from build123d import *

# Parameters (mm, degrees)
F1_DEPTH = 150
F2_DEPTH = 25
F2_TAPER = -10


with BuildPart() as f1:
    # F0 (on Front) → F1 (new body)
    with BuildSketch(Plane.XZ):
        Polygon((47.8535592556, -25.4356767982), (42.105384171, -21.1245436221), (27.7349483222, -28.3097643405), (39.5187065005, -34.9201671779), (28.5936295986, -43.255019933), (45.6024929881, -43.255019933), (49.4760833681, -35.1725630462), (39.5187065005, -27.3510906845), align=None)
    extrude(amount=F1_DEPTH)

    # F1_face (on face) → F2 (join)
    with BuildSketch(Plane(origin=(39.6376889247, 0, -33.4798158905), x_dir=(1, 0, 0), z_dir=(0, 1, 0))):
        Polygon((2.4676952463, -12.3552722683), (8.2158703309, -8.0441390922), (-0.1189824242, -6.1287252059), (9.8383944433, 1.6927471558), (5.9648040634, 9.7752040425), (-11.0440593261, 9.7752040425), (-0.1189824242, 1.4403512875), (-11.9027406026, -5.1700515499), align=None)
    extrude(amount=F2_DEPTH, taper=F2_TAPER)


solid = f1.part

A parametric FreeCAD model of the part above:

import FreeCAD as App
import Part
import Sketcher

V = App.Vector
Q = App.Units.Quantity


def add_polygon(sketch, points):
    """Adds a closed chain of lines whose ends are joined by coincident constraints."""
    first, n = sketch.GeometryCount, len(points)
    for a, b in zip(points, points[1:] + points[:1]):
        sketch.addGeometry(Part.LineSegment(App.Vector(*a, 0), App.Vector(*b, 0)), False)
    for i in range(n):
        sketch.addConstraint(Sketcher.Constraint("Coincident", first + i, 2, first + (i + 1) % n, 1))

doc = App.newDocument("Part")
body = doc.addObject("PartDesign::Body", "Body")

sketch1 = body.newObject("Sketcher::SketchObject", "Sketch")
sketch1.AttachmentSupport = (doc.getObject("XZ_Plane"), [""])
sketch1.MapMode = "FlatFace"
add_polygon(sketch1, [(48, -25), (42, -21), (28, -28), (40, -35), (29, -43), (46, -43), (49, -35), (40, -27)])
sketch1.addConstraint([
    Sketcher.Constraint("Horizontal", 4),
    Sketcher.Constraint("Vertical", 2, 2, 6, 2),
    Sketcher.Constraint("DistanceX", 0, 2, 5, 2, Q("7.370699 mm")),
    Sketcher.Constraint("DistanceY", 5, 2, 1, 2, Q("6.862799 mm")),
    Sketcher.Constraint("Distance", 0, Q("7.18522 mm")),
    Sketcher.Constraint("Distance", 2, Q("13.511269 mm")),
    Sketcher.Constraint("Distance", 7, Q("8.55211 mm")),
    Sketcher.Constraint("DistanceX", 4, 1, 4, 2, Q("17.008863 mm")),
    Sketcher.Constraint("DistanceX", -1, 1, 1, 2, Q("27.734948 mm")),
    Sketcher.Constraint("DistanceX", -1, 1, 3, 2, Q("28.59363 mm")),
    Sketcher.Constraint("DistanceY", 3, 2, -1, 1, Q("43.25502 mm")),
    Sketcher.Constraint("DistanceY", 6, 2, -1, 1, Q("27.351091 mm")),
    Sketcher.Constraint("DistanceX", -1, 1, 7, 2, Q("47.853559 mm")),
    Sketcher.Constraint("DistanceY", 1, 2, 0, 2, Q("7.185221 mm")),
    Sketcher.Constraint("DistanceX", 1, 2, 2, 2, Q("11.783758 mm")),
    Sketcher.Constraint("DistanceX", 0, 2, 4, 2, Q("3.497109 mm")),
])
pad1 = body.newObject("PartDesign::Pad", "Pad")
pad1.Profile = sketch1
pad1.Length = 150

sketch2 = body.newObject("Sketcher::SketchObject", "Sketch001")
sketch2.AttachmentSupport = (doc.getObject("XZ_Plane"), [""])
sketch2.MapMode = "FlatFace"
add_polygon(sketch2, [(42, -21), (48, -25), (40, -27), (49, -35), (46, -43), (29, -43), (40, -35), (28, -28)])
sketch2.addConstraint([
    Sketcher.Constraint("Horizontal", 4),
    Sketcher.Constraint("Vertical", 1, 2, 5, 2),
    Sketcher.Constraint("DistanceY", 2, 2, 6, 2, Q("6.862799 mm")),
    Sketcher.Constraint("DistanceX", 7, 2, 2, 2, Q("7.370699 mm")),
    Sketcher.Constraint("Distance", 0, Q("7.18522 mm")),
    Sketcher.Constraint("Distance", 1, Q("8.55211 mm")),
    Sketcher.Constraint("Distance", 6, Q("13.511269 mm")),
    Sketcher.Constraint("DistanceX", 4, 2, 4, 1, Q("17.008863 mm")),
    Sketcher.Constraint("DistanceX", -1, 1, 0, 2, Q("47.853559 mm")),
    Sketcher.Constraint("DistanceY", 1, 2, -1, 1, Q("27.351091 mm")),
    Sketcher.Constraint("DistanceY", 3, 2, -1, 1, Q("43.25502 mm")),
    Sketcher.Constraint("DistanceX", -1, 1, 4, 2, Q("28.59363 mm")),
    Sketcher.Constraint("DistanceX", -1, 1, 6, 2, Q("27.734948 mm")),
    Sketcher.Constraint("DistanceX", 3, 2, 2, 2, Q("3.87359 mm")),
    Sketcher.Constraint("DistanceY", 5, 2, 0, 2, Q("9.48449 mm")),
    Sketcher.Constraint("DistanceX", 6, 2, 1, 2, Q("11.783758 mm")),
])
pad2 = body.newObject("PartDesign::Pad", "Pad001")
pad2.Profile = sketch2
pad2.Length = 25
pad2.Reversed = True
pad2.TaperAngle = 10

doc.recompute()
